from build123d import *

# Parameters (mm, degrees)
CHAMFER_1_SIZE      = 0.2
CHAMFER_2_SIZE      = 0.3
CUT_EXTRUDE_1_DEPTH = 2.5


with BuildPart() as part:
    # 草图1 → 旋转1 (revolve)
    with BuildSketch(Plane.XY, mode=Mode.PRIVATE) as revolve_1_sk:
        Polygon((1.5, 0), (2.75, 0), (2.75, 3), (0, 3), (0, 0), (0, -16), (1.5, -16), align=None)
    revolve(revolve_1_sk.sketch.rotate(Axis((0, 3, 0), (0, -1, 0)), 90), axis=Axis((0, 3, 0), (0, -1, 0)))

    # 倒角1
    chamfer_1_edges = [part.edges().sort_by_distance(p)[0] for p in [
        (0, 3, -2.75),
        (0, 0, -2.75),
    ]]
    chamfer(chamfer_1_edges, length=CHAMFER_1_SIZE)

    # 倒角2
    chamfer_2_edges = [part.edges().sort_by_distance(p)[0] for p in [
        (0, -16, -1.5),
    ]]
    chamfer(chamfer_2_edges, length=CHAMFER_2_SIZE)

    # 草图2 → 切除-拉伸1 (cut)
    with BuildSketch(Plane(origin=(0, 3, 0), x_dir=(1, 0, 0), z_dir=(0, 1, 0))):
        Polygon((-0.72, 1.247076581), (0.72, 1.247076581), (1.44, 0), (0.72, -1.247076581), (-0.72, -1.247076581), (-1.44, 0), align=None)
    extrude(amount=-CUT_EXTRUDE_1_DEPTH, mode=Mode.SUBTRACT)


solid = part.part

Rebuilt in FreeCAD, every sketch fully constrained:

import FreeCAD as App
import Part
import Sketcher
from FreeCAD import Vector
Q = App.Units.Quantity


def edges_at(feature, points):
    """Names of the edges that pass closest to the given points."""
    edges = feature.Shape.Edges
    near = lambda p: min(range(len(edges)), key=lambda i: edges[i].distToShape(Part.Vertex(*p))[0])
    return sorted({f"Edge{near(p) + 1}" for p in points})

doc = App.newDocument("Part")
body = doc.addObject("PartDesign::Body", "Body")

sketch1 = body.newObject("Sketcher::SketchObject", "Sketch")
sketch1.AttachmentSupport = (doc.getObject("XY_Plane"), [""])
sketch1.MapMode = "FlatFace"
sketch1.addGeometry([
    Part.LineSegment(Vector(1.5, 0, 0), Vector(2.75, 0, 0)),
    Part.LineSegment(Vector(2.75, 0, 0), Vector(2.75, 3, 0)),
    Part.LineSegment(Vector(2.75, 3, 0), Vector(0, 3, 0)),
    Part.LineSegment(Vector(0, 3, 0), Vector(0, -16, 0)),
    Part.LineSegment(Vector(0, -16, 0), Vector(1.5, -16, 0)),
    Part.LineSegment(Vector(1.5, -16, 0), Vector(1.5, 0, 0)),
], False)
sketch1.addConstraint([
    Sketcher.Constraint("Coincident", 0, 2, 1, 1),
    Sketcher.Constraint("Coincident", 1, 2, 2, 1),
    Sketcher.Constraint("Coincident", 2, 2, 3, 1),
    Sketcher.Constraint("Coincident", 3, 2, 4, 1),
    Sketcher.Constraint("Coincident", 4, 2, 5, 1),
    Sketcher.Constraint("Coincident", 5, 2, 0, 1),
    Sketcher.Constraint("Horizontal", 0),
    Sketcher.Constraint("Vertical", 1),
    Sketcher.Constraint("Horizontal", 2),
    Sketcher.Constraint("Vertical", 3),
    Sketcher.Constraint("Horizontal", 4),
    Sketcher.Constraint("Vertical", 5),
    Sketcher.Constraint("PointOnObject", 0, 2, -1),
    Sketcher.Constraint("PointOnObject", 2, 2, -2),
    Sketcher.Constraint("DistanceY", 1, 1, 1, 2, 3.0),
    Sketcher.Constraint("DistanceY", 3, 2, 3, 1, 19.0),
    Sketcher.Constraint("DistanceX", 4, 1, 4, 2, 1.5),
    Sketcher.Constraint("DistanceX", 0, 1, 0, 2, 1.25),
])
revolution = body.newObject("PartDesign::Revolution", "Revolution")
revolution.Profile = sketch1
revolution.ReferenceAxis = (sketch1, ["V_Axis"])
revolution.Angle = 360
doc.recompute()

chamfer = body.newObject("PartDesign::Chamfer", "Chamfer")
chamfer.Base = (revolution, edges_at(revolution, [(0, 3, -2.75), (0, 0, -2.75)]))
chamfer.Size = 0.2
doc.recompute()

chamfer2 = body.newObject("PartDesign::Chamfer", "Chamfer001")
chamfer2.Base = (chamfer, edges_at(chamfer, [(0, -16, -1.5)]))
chamfer2.Size = 0.3

sketch2 = body.newObject("Sketcher::SketchObject", "Sketch001")
sketch2.AttachmentSupport = (doc.getObject("XZ_Plane"), [""])
sketch2.MapMode = "FlatFace"
sketch2.AttachmentOffset = App.Placement(Vector(0, 0, -3), App.Rotation())
sketch2.addGeometry([
    Part.LineSegment(Vector(0.72, -1.247077, 0), Vector(-0.72, -1.247077, 0)),
    Part.LineSegment(Vector(-0.72, -1.247077, 0), Vector(-1.44, 0, 0)),
    Part.LineSegment(Vector(-1.44, 0, 0), Vector(-0.72, 1.247077, 0)),
    Part.LineSegment(Vector(-0.72, 1.247077, 0), Vector(0.72, 1.247077, 0)),
    Part.LineSegment(Vector(0.72, 1.247077, 0), Vector(1.44, 0, 0)),
    Part.LineSegment(Vector(1.44, 0, 0), Vector(0.72, -1.247077, 0)),
], False)
sketch2.addConstraint([
    Sketcher.Constraint("Coincident", 0, 2, 1, 1),
    Sketcher.Constraint("Coincident", 1, 2, 2, 1),
    Sketcher.Constraint("Coincident", 2, 2, 3, 1),
    Sketcher.Constraint("Coincident", 3, 2, 4, 1),
    Sketcher.Constraint("Coincident", 4, 2, 5, 1),
    Sketcher.Constraint("Coincident", 5, 2, 0, 1),
    Sketcher.Constraint("Horizontal", 0),
    Sketcher.Constraint("Horizontal", 3),
    Sketcher.Constraint("Symmetric", 0, 2, 3, 2, -1, 1),
    Sketcher.Constraint("Symmetric", 1, 2, 4, 2, -1, 1),
    Sketcher.Constraint("PointOnObject", 1, 2, -1),
    Sketcher.Constraint("Parallel", 2, 5),
    Sketcher.Constraint("Vertical", 0, 2, 2, 2),
    Sketcher.Constraint("Angle", 1, Q("120 deg")),
    Sketcher.Constraint("DistanceX", 0, 2, 0, 1, 1.44),
    Sketcher.Constraint("Distance", 1, 1.44),
])
pocket1 = body.newObject("PartDesign::Pocket", "Pocket")
pocket1.Profile = sketch2
pocket1.Length = 2.5
pocket1.Reversed = True

doc.recompute()
